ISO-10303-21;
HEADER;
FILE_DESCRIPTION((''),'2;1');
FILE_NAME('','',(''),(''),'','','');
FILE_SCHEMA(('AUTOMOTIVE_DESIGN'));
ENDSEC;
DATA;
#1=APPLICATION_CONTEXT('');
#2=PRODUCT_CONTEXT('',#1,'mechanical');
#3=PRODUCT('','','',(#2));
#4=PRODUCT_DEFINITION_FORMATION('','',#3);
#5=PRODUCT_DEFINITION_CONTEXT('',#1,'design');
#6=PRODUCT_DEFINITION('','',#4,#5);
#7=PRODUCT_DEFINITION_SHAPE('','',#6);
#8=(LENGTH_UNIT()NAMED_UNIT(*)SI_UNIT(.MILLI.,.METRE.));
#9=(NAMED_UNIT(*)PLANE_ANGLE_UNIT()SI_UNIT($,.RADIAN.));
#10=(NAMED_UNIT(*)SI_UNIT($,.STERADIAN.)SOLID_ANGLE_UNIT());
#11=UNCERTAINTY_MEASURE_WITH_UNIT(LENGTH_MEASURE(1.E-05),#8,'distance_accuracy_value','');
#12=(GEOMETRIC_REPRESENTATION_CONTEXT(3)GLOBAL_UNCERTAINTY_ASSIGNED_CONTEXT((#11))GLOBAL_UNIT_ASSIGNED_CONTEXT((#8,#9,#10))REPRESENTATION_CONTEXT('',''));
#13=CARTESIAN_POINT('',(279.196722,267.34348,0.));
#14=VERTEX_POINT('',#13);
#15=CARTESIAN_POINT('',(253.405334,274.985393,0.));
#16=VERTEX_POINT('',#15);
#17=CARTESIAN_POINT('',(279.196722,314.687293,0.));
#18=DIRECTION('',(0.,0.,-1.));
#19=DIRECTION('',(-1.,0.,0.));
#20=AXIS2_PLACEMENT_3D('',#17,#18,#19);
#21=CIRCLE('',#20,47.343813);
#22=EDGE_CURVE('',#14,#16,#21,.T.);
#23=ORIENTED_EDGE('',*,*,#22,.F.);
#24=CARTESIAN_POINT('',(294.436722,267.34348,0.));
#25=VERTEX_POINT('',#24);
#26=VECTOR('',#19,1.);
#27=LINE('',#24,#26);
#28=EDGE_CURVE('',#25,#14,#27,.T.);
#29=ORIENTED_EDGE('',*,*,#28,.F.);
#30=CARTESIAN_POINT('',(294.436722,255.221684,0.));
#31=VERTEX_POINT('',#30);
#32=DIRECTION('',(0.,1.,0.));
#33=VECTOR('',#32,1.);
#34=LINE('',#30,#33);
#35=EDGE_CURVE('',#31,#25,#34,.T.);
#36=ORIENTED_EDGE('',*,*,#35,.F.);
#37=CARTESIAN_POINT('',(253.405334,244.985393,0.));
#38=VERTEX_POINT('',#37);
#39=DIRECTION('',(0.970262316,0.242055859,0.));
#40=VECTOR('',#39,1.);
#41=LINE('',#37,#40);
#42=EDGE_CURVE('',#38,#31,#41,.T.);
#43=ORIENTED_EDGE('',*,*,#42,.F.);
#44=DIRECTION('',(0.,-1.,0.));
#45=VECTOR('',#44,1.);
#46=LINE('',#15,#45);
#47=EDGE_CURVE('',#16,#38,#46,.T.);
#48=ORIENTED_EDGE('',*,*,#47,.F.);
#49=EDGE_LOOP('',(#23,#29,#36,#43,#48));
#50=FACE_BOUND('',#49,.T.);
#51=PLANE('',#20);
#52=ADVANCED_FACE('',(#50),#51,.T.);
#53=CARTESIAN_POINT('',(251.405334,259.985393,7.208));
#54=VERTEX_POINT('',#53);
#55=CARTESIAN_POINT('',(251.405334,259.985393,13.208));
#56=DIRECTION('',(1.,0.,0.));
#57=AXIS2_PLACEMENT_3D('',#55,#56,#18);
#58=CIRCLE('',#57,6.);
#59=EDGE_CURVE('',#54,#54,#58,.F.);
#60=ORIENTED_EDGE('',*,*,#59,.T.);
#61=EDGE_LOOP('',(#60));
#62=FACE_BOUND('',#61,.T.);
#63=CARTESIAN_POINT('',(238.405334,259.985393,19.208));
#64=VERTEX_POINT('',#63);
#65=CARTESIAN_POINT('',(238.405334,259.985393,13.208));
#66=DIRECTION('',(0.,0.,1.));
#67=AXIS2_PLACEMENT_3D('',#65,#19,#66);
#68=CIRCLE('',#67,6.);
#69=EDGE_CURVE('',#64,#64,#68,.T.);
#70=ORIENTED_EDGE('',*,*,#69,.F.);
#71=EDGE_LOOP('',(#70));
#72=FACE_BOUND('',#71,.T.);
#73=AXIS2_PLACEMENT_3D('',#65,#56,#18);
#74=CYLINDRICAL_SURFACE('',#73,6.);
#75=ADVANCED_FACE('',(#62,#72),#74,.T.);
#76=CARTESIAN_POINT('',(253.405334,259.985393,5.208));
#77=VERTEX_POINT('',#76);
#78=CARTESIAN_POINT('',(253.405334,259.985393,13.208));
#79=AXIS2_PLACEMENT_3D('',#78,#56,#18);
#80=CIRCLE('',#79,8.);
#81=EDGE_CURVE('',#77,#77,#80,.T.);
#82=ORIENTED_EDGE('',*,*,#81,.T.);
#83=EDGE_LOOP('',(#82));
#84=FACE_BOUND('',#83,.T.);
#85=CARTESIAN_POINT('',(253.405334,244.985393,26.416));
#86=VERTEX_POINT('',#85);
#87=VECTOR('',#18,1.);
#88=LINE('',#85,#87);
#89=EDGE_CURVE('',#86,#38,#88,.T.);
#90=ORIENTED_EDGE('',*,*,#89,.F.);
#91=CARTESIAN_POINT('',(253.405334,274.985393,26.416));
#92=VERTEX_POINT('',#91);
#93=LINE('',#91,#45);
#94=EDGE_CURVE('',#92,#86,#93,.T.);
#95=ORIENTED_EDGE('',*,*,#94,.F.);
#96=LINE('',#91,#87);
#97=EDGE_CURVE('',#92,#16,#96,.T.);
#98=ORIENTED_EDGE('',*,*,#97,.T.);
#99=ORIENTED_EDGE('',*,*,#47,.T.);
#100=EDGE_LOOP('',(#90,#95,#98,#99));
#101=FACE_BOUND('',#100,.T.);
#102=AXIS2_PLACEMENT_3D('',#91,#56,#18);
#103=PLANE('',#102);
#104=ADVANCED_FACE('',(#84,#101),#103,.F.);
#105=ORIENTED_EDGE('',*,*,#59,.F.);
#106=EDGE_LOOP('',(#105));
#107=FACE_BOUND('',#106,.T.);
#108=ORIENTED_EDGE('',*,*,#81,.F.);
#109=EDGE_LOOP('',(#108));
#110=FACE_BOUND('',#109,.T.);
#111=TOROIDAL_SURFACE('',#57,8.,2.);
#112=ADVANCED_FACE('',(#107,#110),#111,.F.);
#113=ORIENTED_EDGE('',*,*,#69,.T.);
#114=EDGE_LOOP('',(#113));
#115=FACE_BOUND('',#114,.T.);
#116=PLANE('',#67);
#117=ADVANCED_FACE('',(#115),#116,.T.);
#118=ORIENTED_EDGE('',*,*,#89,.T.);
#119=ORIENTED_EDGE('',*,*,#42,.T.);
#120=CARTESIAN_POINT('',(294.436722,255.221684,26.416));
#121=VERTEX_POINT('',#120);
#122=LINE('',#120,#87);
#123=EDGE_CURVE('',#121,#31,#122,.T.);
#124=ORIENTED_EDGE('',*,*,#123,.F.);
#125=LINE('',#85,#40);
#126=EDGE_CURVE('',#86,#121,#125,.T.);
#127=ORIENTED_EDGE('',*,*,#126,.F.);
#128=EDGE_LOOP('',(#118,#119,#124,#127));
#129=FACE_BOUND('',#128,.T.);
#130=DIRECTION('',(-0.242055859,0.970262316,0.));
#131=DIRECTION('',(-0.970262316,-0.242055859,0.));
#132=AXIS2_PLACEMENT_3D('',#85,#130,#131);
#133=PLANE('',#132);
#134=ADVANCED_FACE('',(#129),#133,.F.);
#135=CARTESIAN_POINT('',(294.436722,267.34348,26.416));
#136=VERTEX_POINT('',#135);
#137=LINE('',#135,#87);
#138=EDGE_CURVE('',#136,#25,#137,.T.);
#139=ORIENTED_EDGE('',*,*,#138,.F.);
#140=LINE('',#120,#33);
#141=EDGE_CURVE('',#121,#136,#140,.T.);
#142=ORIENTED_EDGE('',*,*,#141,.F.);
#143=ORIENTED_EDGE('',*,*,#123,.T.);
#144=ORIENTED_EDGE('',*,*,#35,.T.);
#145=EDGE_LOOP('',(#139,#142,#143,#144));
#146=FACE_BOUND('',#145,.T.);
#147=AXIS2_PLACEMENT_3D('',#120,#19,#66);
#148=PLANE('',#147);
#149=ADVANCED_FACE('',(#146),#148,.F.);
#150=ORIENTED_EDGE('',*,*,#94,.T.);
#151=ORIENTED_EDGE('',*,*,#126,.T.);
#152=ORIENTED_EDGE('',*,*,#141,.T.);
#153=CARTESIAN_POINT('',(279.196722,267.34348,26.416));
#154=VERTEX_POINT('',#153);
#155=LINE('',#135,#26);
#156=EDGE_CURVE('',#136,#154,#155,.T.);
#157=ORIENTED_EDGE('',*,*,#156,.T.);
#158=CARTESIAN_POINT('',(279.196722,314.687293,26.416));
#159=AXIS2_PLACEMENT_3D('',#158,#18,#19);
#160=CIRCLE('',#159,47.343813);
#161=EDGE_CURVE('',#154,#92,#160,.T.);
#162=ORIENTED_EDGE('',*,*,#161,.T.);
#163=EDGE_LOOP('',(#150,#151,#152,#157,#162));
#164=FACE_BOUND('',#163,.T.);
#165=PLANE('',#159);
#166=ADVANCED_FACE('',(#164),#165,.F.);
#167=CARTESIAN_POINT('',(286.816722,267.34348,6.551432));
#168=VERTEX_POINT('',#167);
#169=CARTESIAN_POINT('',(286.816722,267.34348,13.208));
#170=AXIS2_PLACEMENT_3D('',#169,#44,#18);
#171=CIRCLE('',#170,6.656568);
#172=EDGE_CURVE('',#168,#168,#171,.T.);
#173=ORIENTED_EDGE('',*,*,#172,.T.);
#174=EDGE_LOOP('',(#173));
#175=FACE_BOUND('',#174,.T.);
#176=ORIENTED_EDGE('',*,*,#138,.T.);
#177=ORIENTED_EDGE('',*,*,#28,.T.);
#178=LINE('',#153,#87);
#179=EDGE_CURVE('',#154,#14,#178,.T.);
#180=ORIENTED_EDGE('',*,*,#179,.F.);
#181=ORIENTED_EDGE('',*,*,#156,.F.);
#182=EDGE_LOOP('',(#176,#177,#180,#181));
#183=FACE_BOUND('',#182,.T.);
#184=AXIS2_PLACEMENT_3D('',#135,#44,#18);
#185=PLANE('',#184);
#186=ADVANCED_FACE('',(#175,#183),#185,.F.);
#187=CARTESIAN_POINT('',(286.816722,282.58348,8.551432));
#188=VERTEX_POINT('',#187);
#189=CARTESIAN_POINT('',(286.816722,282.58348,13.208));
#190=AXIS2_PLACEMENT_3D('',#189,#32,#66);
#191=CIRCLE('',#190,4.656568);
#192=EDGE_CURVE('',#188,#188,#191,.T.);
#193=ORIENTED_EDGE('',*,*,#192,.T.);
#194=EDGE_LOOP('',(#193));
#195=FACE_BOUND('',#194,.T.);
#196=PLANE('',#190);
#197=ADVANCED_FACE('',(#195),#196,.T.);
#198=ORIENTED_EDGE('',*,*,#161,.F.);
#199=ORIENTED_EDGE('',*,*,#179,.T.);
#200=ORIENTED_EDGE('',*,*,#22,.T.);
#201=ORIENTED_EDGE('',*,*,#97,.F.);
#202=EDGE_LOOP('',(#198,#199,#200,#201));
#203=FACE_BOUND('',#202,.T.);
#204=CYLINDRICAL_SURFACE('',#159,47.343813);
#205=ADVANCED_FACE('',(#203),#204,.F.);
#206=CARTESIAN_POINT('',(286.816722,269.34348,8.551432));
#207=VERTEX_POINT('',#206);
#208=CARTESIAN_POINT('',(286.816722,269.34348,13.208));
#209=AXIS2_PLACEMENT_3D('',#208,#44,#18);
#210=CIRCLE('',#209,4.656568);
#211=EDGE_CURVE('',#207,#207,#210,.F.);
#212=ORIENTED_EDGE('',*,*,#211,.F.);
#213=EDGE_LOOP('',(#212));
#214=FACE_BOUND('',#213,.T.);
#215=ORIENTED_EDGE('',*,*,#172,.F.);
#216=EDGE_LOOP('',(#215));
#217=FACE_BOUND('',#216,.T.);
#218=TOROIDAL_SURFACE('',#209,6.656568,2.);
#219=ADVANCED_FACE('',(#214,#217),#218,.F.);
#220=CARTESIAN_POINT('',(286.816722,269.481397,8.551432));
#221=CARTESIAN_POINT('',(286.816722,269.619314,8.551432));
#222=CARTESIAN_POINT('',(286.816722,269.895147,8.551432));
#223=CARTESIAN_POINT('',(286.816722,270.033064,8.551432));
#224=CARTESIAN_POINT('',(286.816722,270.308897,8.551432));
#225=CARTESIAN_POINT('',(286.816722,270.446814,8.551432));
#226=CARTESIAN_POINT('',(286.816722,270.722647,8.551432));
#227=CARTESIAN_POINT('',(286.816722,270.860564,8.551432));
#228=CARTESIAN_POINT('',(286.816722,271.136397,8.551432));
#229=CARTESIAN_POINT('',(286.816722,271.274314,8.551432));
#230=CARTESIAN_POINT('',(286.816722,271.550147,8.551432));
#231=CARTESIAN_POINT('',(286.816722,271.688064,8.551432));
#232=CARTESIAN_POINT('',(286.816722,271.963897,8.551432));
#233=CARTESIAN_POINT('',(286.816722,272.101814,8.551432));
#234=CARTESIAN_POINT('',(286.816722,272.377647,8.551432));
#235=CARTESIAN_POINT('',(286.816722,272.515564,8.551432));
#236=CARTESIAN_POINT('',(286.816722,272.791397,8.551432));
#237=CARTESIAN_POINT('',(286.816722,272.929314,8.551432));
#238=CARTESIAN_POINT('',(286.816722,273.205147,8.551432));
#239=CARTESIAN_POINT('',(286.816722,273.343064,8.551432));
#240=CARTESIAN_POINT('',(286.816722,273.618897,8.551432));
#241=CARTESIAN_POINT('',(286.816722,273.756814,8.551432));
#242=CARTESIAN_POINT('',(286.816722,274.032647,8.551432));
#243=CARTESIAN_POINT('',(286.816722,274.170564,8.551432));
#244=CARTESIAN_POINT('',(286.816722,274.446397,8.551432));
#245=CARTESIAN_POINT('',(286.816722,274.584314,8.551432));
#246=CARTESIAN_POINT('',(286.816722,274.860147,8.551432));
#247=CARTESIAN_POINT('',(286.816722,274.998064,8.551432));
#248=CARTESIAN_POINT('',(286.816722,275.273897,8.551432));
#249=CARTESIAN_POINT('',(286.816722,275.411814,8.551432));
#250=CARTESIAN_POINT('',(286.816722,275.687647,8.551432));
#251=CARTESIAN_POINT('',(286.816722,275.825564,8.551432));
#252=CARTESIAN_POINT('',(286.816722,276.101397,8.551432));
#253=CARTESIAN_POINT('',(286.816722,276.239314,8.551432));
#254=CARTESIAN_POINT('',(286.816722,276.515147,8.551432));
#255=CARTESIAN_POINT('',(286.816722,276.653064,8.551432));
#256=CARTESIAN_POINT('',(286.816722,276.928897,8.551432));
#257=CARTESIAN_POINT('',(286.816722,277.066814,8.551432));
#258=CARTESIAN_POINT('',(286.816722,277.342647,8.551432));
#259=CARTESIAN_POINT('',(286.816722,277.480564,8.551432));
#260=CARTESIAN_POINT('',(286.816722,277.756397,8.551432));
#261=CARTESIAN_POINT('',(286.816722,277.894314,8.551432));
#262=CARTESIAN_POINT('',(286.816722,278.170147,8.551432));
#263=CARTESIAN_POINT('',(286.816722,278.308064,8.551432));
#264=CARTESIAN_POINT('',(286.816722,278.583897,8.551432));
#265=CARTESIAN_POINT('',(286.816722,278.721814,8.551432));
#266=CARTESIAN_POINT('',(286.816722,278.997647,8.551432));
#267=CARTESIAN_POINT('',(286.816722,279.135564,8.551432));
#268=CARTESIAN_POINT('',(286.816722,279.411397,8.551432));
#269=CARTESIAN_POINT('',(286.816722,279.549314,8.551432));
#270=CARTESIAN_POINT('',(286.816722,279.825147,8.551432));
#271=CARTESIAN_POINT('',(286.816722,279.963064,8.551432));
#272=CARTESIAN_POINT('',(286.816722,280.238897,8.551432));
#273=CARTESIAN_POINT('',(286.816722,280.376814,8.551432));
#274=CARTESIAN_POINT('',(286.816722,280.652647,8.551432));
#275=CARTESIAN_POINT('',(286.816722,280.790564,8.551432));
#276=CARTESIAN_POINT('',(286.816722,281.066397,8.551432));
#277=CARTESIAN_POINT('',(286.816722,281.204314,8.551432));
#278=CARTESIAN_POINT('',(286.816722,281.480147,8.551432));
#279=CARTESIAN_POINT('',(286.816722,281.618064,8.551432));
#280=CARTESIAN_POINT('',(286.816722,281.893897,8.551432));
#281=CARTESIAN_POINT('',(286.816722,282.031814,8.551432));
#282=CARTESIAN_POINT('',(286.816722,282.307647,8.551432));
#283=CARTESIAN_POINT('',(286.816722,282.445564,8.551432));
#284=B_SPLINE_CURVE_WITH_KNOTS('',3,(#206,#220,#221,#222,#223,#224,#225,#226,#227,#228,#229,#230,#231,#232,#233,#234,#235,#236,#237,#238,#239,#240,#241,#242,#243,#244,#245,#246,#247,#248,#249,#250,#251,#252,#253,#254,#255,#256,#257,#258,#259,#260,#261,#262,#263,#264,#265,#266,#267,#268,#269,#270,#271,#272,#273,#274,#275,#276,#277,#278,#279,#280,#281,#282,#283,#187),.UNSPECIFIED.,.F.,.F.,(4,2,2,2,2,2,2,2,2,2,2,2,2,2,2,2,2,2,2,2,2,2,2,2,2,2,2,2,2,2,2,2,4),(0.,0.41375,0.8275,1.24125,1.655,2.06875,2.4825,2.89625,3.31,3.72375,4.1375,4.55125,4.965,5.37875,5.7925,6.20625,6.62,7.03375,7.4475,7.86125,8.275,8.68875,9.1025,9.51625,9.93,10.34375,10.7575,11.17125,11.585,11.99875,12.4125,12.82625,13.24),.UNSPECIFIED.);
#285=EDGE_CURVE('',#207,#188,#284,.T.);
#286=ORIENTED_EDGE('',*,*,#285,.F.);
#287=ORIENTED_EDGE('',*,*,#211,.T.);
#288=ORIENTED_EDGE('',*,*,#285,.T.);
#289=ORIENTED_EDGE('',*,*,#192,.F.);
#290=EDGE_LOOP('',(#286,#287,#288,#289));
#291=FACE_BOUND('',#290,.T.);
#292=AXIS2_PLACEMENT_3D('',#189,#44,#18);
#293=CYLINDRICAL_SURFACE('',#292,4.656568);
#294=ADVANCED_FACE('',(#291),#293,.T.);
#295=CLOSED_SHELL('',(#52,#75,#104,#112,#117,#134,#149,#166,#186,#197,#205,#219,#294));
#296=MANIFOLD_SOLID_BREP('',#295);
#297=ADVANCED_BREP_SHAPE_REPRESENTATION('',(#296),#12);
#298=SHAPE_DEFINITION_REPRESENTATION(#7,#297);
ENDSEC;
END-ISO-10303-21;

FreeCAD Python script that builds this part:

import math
import FreeCAD as App
import Part
import Sketcher


def edges_at(feature, points):
    """Names of the edges that pass closest to the given points."""
    edges = feature.Shape.Edges
    near = lambda p: min(range(len(edges)), key=lambda i: edges[i].distToShape(Part.Vertex(*p))[0])
    return sorted({f"Edge{near(p) + 1}" for p in points})

doc = App.newDocument("Part")
body = doc.addObject("PartDesign::Body", "Body")

sketch1 = body.newObject("Sketcher::SketchObject", "Sketch")
sketch1.AttachmentSupport = (doc.getObject("XY_Plane"), [""])
sketch1.MapMode = "FlatFace"
sketch1.addGeometry(Part.LineSegment(App.Vector(253, 275, 0), App.Vector(253, 245, 0)), False)
sketch1.addGeometry(Part.LineSegment(App.Vector(253, 245, 0), App.Vector(294, 255, 0)), False)
sketch1.addGeometry(Part.LineSegment(App.Vector(294, 255, 0), App.Vector(294, 267, 0)), False)
sketch1.addGeometry(Part.LineSegment(App.Vector(294, 267, 0), App.Vector(279, 267, 0)), False)
sketch1.addGeometry(Part.ArcOfCircle(Part.Circle(App.Vector(279, 315, 0), App.Vector(0, 0, 1), 47), math.radians(-123), math.radians(-90)), False)
sketch1.addConstraint(Sketcher.Constraint("Coincident", 0, 2, 1, 1))
sketch1.addConstraint(Sketcher.Constraint("Coincident", 1, 2, 2, 1))
sketch1.addConstraint(Sketcher.Constraint("Coincident", 2, 2, 3, 1))
sketch1.addConstraint(Sketcher.Constraint("Tangent", 3, 2, 4, 2))
sketch1.addConstraint(Sketcher.Constraint("Coincident", 4, 1, 0, 1))
sketch1.addConstraint(Sketcher.Constraint("Vertical", 0))
sketch1.addConstraint(Sketcher.Constraint("Vertical", 2))
sketch1.addConstraint(Sketcher.Constraint("Horizontal", 3))
sketch1.addConstraint(Sketcher.Constraint("DistanceY", 0, 2, 0, 1, 30.0))
sketch1.addConstraint(Sketcher.Constraint("DistanceX", 3, 2, 3, 1, 15.24))
sketch1.addConstraint(Sketcher.Constraint("Radius", 4, 47.343813))
sketch1.addConstraint(Sketcher.Constraint("DistanceY", 0, 2, 4, 3, 69.701901))
sketch1.addConstraint(Sketcher.Constraint("DistanceY", 2, 1, 2, 2, 12.121796))
sketch1.addConstraint(Sketcher.Constraint("DistanceY", -1, 1, 2, 2, 267.34348))
sketch1.addConstraint(Sketcher.Constraint("DistanceX", -1, 1, 4, 3, 279.196722))
pad1 = body.newObject("PartDesign::Pad", "Pad")
pad1.Profile = sketch1
pad1.Length = 26.416

sketch2 = body.newObject("Sketcher::SketchObject", "Sketch001")
sketch2.AttachmentSupport = (doc.getObject("XZ_Plane"), [""])
sketch2.MapMode = "FlatFace"
sketch2.AttachmentOffset = App.Placement(App.Vector(0, 0, -267.34348), App.Rotation())
sketch2.addGeometry(Part.Circle(App.Vector(286.8, 13.2, 0), App.Vector(0, 0, 1), 4.7), False)
sketch2.addConstraint(Sketcher.Constraint("Diameter", 0, 9.313136))
sketch2.addConstraint(Sketcher.Constraint("DistanceY", -1, 1, 0, 3, 13.208))
sketch2.addConstraint(Sketcher.Constraint("DistanceX", -1, 1, 0, 3, 286.816722))
pad2 = body.newObject("PartDesign::Pad", "Pad001")
pad2.Profile = sketch2
pad2.Length = 15.24
pad2.Reversed = True

sketch3 = body.newObject("Sketcher::SketchObject", "Sketch002")
sketch3.AttachmentSupport = (doc.getObject("YZ_Plane"), [""])
sketch3.MapMode = "FlatFace"
sketch3.AttachmentOffset = App.Placement(App.Vector(0, 0, 253.405334), App.Rotation())
sketch3.addGeometry(Part.Circle(App.Vector(260, 13, 0), App.Vector(0, 0, 1), 6), False)
sketch3.addConstraint(Sketcher.Constraint("Diameter", 0, 12.0))
sketch3.addConstraint(Sketcher.Constraint("DistanceY", -1, 1, 0, 3, 13.208))
sketch3.addConstraint(Sketcher.Constraint("DistanceX", -1, 1, 0, 3, 259.985393))
pad3 = body.newObject("PartDesign::Pad", "Pad002")
pad3.Profile = sketch3
pad3.Length = 15
pad3.Reversed = True
doc.recompute()

fillet = body.newObject("PartDesign::Fillet", "Fillet")
fillet.Base = (pad3, edges_at(pad3, [(253.405, 259.985, 7.208)]))
fillet.Radius = 2
doc.recompute()

fillet2 = body.newObject("PartDesign::Fillet", "Fillet001")
fillet2.Base = (fillet, edges_at(fillet, [(286.817, 267.343, 17.865)]))
fillet2.Radius = 2

doc.recompute()
